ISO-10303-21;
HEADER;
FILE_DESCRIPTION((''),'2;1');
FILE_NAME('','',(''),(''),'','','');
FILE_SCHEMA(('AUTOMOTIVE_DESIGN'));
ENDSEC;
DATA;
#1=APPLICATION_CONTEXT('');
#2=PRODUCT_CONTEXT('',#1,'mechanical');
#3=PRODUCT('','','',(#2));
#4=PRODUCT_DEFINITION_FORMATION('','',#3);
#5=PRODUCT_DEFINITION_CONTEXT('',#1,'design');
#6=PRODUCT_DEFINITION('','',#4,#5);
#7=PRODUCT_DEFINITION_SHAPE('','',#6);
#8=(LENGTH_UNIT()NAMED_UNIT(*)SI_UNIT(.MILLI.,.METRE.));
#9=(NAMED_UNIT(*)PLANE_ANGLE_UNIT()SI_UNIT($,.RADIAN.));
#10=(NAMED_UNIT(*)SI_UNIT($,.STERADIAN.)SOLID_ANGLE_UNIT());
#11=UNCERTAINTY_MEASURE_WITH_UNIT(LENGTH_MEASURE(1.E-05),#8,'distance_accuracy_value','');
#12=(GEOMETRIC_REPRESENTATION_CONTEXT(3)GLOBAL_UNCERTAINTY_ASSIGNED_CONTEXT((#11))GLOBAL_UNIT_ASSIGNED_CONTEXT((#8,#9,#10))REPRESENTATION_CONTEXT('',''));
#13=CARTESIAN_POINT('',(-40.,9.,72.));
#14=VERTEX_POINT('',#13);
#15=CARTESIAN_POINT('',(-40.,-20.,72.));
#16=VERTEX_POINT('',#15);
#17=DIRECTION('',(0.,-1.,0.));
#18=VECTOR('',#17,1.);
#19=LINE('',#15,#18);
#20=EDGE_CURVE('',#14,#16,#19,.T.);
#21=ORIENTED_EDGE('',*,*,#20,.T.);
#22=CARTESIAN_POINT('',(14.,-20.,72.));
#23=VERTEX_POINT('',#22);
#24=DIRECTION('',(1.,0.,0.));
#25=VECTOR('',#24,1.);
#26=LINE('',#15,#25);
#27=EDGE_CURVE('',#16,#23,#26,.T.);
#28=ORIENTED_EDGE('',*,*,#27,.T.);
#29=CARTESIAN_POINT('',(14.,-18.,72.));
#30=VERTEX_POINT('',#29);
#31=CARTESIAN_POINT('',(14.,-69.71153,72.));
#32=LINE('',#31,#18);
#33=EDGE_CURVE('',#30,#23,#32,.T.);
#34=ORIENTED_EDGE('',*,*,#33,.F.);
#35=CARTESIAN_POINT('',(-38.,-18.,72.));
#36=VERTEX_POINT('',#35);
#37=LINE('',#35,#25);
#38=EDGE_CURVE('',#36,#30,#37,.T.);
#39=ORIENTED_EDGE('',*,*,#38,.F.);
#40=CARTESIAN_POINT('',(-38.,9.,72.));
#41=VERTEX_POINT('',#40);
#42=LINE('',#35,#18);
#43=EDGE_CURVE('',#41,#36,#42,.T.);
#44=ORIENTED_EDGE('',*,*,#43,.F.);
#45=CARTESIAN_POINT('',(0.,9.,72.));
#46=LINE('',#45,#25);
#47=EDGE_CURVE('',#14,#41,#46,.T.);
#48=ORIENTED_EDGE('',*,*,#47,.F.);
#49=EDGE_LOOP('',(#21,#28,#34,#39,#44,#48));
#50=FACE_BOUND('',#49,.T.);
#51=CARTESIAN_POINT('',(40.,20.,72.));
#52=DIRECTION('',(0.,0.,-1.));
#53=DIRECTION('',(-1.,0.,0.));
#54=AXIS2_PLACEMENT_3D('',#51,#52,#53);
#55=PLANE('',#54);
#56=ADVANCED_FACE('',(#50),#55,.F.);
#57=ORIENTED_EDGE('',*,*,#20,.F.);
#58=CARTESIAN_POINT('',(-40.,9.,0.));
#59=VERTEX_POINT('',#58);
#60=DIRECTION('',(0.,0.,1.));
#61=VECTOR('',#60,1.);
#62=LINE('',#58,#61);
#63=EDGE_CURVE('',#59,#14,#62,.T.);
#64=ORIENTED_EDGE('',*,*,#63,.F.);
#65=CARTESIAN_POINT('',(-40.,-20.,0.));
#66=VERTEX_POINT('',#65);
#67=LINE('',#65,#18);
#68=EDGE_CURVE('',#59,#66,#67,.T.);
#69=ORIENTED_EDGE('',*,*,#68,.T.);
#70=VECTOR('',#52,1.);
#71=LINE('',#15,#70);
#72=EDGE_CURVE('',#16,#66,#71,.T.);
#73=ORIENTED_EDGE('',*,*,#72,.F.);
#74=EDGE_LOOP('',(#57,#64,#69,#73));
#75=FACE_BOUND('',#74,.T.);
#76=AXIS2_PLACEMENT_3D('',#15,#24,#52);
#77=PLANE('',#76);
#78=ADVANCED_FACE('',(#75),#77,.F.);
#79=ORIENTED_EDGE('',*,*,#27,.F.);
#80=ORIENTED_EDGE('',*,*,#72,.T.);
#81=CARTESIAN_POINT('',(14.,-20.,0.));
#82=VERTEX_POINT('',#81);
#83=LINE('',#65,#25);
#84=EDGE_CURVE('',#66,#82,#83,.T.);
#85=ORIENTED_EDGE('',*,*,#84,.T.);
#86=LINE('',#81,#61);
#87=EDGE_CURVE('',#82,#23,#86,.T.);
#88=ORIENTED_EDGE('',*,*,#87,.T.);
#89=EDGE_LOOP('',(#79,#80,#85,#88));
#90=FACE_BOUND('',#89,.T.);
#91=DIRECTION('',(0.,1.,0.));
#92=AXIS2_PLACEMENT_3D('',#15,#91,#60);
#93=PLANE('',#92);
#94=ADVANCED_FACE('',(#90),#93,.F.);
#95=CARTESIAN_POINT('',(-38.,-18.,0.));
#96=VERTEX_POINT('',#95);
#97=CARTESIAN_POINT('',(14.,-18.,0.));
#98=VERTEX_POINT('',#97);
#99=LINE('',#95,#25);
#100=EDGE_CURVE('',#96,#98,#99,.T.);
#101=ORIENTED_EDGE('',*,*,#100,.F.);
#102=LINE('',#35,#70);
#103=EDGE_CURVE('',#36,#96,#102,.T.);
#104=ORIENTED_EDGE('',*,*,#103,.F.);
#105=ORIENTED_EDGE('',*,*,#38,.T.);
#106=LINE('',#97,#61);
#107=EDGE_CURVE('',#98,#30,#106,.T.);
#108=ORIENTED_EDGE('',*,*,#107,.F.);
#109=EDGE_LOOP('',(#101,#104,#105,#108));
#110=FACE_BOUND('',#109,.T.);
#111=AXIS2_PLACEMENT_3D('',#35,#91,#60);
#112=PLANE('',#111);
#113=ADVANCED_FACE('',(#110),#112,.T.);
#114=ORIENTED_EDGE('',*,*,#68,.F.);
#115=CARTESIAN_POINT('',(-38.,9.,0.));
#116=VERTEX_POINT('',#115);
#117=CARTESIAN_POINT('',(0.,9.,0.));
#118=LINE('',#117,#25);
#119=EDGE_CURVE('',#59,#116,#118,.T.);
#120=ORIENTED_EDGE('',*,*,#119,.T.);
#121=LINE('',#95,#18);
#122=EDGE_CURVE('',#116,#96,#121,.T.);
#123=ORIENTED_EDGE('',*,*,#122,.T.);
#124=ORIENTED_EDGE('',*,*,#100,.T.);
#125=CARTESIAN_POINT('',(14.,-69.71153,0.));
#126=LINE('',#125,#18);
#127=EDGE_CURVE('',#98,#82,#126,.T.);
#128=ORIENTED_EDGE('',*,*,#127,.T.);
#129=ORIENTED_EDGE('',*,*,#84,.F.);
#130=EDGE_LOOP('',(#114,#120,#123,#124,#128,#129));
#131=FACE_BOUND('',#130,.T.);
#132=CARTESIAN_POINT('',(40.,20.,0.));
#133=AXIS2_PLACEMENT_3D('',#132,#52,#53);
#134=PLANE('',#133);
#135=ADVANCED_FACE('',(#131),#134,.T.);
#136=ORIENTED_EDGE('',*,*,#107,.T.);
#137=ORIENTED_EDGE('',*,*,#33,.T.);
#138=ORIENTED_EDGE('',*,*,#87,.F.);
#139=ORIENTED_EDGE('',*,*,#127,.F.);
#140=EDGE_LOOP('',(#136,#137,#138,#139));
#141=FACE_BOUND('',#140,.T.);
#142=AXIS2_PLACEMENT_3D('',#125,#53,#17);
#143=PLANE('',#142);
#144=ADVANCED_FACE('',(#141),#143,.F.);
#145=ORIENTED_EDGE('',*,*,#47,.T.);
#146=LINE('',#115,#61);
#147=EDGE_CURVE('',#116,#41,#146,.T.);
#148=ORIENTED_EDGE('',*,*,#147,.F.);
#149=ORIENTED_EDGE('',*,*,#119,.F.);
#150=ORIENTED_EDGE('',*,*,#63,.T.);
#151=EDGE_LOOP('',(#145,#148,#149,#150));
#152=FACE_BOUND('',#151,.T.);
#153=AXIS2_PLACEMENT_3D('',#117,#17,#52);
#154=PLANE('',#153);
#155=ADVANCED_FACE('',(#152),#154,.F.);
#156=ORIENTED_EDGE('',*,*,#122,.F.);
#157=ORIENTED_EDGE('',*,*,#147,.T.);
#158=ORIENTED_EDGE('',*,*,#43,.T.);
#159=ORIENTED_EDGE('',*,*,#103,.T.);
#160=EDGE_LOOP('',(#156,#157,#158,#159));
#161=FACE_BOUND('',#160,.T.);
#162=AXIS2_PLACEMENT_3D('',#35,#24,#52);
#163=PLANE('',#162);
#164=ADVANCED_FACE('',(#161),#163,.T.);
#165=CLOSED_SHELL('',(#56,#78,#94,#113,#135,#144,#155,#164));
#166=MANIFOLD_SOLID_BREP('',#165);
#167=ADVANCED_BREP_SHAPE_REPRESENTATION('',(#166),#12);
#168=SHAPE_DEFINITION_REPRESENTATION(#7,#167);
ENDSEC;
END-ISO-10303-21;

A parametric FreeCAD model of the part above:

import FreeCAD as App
import Part
import Sketcher
from FreeCAD import Vector


def add_polygon(sketch, points):
    """Adds a closed chain of lines whose ends are joined by coincident constraints."""
    first, n = sketch.GeometryCount, len(points)
    for a, b in zip(points, points[1:] + points[:1]):
        sketch.addGeometry(Part.LineSegment(App.Vector(*a, 0), App.Vector(*b, 0)), False)
    for i in range(n):
        sketch.addConstraint(Sketcher.Constraint("Coincident", first + i, 2, first + (i + 1) % n, 1))

doc = App.newDocument("Part")
body = doc.addObject("PartDesign::Body", "Body")

# Sketch on XY plane
sketch1 = body.newObject("Sketcher::SketchObject", "Sketch")
sketch1.AttachmentSupport = (doc.getObject("XY_Plane"), [""])
sketch1.MapMode = "FlatFace"
add_polygon(sketch1, [(-40, 20), (-40, -20), (40, -20), (40, 20)])  # lines 0-3
add_polygon(sketch1, [(38, -18), (-38, -18), (-38, 18), (38, 18)])  # lines 4-7
sketch1.addConstraint(Sketcher.Constraint("Vertical", 0))
sketch1.addConstraint(Sketcher.Constraint("Horizontal", 1))
sketch1.addConstraint(Sketcher.Constraint("Vertical", 2))
sketch1.addConstraint(Sketcher.Constraint("Horizontal", 3))
sketch1.addConstraint(Sketcher.Constraint("Horizontal", 4))
sketch1.addConstraint(Sketcher.Constraint("Vertical", 5))
sketch1.addConstraint(Sketcher.Constraint("Horizontal", 6))
sketch1.addConstraint(Sketcher.Constraint("Vertical", 7))
sketch1.addConstraint(Sketcher.Constraint("Symmetric", 0, 2, 2, 2, -1, 1))
sketch1.addConstraint(Sketcher.Constraint("Symmetric", 4, 2, 6, 2, -1, 1))
sketch1.addConstraint(Sketcher.Constraint("DistanceX", 1, 1, 1, 2, 80.0))
sketch1.addConstraint(Sketcher.Constraint("DistanceX", 4, 2, 4, 1, 76.0))
sketch1.addConstraint(Sketcher.Constraint("DistanceY", 0, 2, 0, 1, 40.0))
sketch1.addConstraint(Sketcher.Constraint("DistanceY", 5, 1, 5, 2, 36.0))
pad1 = body.newObject("PartDesign::Pad", "Pad")
pad1.Profile = sketch1
pad1.Length = 72

# Sketch on XY plane
sketch2 = body.newObject("Sketcher::SketchObject", "Sketch001")
sketch2.AttachmentSupport = (doc.getObject("XY_Plane"), [""])
sketch2.MapMode = "FlatFace"
sketch2.AttachmentOffset = App.Placement(Vector(0, 0, 72), App.Rotation())
add_polygon(sketch2, [(-40, 20), (-40, 9), (-38, 9), (-38, 18), (38, 18), (38, -18), (14, -18), (14, -20), (40, -20), (40, 20)])  # lines 0-9
sketch2.addConstraint(Sketcher.Constraint("Vertical", 0))
sketch2.addConstraint(Sketcher.Constraint("Horizontal", 1))
sketch2.addConstraint(Sketcher.Constraint("Vertical", 2))
sketch2.addConstraint(Sketcher.Constraint("Horizontal", 3))
sketch2.addConstraint(Sketcher.Constraint("Vertical", 4))
sketch2.addConstraint(Sketcher.Constraint("Horizontal", 5))
sketch2.addConstraint(Sketcher.Constraint("Vertical", 6))
sketch2.addConstraint(Sketcher.Constraint("Horizontal", 7))
sketch2.addConstraint(Sketcher.Constraint("Vertical", 8))
sketch2.addConstraint(Sketcher.Constraint("Horizontal", 9))
sketch2.addConstraint(Sketcher.Constraint("Symmetric", 2, 2, 4, 2, -1, 1))
sketch2.addConstraint(Sketcher.Constraint("Symmetric", 7, 2, 9, 2, -1, 1))
sketch2.addConstraint(Sketcher.Constraint("Equal", 1, 6))
sketch2.addConstraint(Sketcher.Constraint("DistanceX", 1, 1, 1, 2, 2.0))
sketch2.addConstraint(Sketcher.Constraint("DistanceX", 3, 1, 3, 2, 76.0))
sketch2.addConstraint(Sketcher.Constraint("DistanceX", 5, 2, 5, 1, 24.0))
sketch2.addConstraint(Sketcher.Constraint("DistanceY", 0, 2, 0, 1, 11.0))
sketch2.addConstraint(Sketcher.Constraint("DistanceY", 4, 2, 4, 1, 36.0))
pocket1 = body.newObject("PartDesign::Pocket", "Pocket")
pocket1.Profile = sketch2
pocket1.Type = "ThroughAll"

doc.recompute()
